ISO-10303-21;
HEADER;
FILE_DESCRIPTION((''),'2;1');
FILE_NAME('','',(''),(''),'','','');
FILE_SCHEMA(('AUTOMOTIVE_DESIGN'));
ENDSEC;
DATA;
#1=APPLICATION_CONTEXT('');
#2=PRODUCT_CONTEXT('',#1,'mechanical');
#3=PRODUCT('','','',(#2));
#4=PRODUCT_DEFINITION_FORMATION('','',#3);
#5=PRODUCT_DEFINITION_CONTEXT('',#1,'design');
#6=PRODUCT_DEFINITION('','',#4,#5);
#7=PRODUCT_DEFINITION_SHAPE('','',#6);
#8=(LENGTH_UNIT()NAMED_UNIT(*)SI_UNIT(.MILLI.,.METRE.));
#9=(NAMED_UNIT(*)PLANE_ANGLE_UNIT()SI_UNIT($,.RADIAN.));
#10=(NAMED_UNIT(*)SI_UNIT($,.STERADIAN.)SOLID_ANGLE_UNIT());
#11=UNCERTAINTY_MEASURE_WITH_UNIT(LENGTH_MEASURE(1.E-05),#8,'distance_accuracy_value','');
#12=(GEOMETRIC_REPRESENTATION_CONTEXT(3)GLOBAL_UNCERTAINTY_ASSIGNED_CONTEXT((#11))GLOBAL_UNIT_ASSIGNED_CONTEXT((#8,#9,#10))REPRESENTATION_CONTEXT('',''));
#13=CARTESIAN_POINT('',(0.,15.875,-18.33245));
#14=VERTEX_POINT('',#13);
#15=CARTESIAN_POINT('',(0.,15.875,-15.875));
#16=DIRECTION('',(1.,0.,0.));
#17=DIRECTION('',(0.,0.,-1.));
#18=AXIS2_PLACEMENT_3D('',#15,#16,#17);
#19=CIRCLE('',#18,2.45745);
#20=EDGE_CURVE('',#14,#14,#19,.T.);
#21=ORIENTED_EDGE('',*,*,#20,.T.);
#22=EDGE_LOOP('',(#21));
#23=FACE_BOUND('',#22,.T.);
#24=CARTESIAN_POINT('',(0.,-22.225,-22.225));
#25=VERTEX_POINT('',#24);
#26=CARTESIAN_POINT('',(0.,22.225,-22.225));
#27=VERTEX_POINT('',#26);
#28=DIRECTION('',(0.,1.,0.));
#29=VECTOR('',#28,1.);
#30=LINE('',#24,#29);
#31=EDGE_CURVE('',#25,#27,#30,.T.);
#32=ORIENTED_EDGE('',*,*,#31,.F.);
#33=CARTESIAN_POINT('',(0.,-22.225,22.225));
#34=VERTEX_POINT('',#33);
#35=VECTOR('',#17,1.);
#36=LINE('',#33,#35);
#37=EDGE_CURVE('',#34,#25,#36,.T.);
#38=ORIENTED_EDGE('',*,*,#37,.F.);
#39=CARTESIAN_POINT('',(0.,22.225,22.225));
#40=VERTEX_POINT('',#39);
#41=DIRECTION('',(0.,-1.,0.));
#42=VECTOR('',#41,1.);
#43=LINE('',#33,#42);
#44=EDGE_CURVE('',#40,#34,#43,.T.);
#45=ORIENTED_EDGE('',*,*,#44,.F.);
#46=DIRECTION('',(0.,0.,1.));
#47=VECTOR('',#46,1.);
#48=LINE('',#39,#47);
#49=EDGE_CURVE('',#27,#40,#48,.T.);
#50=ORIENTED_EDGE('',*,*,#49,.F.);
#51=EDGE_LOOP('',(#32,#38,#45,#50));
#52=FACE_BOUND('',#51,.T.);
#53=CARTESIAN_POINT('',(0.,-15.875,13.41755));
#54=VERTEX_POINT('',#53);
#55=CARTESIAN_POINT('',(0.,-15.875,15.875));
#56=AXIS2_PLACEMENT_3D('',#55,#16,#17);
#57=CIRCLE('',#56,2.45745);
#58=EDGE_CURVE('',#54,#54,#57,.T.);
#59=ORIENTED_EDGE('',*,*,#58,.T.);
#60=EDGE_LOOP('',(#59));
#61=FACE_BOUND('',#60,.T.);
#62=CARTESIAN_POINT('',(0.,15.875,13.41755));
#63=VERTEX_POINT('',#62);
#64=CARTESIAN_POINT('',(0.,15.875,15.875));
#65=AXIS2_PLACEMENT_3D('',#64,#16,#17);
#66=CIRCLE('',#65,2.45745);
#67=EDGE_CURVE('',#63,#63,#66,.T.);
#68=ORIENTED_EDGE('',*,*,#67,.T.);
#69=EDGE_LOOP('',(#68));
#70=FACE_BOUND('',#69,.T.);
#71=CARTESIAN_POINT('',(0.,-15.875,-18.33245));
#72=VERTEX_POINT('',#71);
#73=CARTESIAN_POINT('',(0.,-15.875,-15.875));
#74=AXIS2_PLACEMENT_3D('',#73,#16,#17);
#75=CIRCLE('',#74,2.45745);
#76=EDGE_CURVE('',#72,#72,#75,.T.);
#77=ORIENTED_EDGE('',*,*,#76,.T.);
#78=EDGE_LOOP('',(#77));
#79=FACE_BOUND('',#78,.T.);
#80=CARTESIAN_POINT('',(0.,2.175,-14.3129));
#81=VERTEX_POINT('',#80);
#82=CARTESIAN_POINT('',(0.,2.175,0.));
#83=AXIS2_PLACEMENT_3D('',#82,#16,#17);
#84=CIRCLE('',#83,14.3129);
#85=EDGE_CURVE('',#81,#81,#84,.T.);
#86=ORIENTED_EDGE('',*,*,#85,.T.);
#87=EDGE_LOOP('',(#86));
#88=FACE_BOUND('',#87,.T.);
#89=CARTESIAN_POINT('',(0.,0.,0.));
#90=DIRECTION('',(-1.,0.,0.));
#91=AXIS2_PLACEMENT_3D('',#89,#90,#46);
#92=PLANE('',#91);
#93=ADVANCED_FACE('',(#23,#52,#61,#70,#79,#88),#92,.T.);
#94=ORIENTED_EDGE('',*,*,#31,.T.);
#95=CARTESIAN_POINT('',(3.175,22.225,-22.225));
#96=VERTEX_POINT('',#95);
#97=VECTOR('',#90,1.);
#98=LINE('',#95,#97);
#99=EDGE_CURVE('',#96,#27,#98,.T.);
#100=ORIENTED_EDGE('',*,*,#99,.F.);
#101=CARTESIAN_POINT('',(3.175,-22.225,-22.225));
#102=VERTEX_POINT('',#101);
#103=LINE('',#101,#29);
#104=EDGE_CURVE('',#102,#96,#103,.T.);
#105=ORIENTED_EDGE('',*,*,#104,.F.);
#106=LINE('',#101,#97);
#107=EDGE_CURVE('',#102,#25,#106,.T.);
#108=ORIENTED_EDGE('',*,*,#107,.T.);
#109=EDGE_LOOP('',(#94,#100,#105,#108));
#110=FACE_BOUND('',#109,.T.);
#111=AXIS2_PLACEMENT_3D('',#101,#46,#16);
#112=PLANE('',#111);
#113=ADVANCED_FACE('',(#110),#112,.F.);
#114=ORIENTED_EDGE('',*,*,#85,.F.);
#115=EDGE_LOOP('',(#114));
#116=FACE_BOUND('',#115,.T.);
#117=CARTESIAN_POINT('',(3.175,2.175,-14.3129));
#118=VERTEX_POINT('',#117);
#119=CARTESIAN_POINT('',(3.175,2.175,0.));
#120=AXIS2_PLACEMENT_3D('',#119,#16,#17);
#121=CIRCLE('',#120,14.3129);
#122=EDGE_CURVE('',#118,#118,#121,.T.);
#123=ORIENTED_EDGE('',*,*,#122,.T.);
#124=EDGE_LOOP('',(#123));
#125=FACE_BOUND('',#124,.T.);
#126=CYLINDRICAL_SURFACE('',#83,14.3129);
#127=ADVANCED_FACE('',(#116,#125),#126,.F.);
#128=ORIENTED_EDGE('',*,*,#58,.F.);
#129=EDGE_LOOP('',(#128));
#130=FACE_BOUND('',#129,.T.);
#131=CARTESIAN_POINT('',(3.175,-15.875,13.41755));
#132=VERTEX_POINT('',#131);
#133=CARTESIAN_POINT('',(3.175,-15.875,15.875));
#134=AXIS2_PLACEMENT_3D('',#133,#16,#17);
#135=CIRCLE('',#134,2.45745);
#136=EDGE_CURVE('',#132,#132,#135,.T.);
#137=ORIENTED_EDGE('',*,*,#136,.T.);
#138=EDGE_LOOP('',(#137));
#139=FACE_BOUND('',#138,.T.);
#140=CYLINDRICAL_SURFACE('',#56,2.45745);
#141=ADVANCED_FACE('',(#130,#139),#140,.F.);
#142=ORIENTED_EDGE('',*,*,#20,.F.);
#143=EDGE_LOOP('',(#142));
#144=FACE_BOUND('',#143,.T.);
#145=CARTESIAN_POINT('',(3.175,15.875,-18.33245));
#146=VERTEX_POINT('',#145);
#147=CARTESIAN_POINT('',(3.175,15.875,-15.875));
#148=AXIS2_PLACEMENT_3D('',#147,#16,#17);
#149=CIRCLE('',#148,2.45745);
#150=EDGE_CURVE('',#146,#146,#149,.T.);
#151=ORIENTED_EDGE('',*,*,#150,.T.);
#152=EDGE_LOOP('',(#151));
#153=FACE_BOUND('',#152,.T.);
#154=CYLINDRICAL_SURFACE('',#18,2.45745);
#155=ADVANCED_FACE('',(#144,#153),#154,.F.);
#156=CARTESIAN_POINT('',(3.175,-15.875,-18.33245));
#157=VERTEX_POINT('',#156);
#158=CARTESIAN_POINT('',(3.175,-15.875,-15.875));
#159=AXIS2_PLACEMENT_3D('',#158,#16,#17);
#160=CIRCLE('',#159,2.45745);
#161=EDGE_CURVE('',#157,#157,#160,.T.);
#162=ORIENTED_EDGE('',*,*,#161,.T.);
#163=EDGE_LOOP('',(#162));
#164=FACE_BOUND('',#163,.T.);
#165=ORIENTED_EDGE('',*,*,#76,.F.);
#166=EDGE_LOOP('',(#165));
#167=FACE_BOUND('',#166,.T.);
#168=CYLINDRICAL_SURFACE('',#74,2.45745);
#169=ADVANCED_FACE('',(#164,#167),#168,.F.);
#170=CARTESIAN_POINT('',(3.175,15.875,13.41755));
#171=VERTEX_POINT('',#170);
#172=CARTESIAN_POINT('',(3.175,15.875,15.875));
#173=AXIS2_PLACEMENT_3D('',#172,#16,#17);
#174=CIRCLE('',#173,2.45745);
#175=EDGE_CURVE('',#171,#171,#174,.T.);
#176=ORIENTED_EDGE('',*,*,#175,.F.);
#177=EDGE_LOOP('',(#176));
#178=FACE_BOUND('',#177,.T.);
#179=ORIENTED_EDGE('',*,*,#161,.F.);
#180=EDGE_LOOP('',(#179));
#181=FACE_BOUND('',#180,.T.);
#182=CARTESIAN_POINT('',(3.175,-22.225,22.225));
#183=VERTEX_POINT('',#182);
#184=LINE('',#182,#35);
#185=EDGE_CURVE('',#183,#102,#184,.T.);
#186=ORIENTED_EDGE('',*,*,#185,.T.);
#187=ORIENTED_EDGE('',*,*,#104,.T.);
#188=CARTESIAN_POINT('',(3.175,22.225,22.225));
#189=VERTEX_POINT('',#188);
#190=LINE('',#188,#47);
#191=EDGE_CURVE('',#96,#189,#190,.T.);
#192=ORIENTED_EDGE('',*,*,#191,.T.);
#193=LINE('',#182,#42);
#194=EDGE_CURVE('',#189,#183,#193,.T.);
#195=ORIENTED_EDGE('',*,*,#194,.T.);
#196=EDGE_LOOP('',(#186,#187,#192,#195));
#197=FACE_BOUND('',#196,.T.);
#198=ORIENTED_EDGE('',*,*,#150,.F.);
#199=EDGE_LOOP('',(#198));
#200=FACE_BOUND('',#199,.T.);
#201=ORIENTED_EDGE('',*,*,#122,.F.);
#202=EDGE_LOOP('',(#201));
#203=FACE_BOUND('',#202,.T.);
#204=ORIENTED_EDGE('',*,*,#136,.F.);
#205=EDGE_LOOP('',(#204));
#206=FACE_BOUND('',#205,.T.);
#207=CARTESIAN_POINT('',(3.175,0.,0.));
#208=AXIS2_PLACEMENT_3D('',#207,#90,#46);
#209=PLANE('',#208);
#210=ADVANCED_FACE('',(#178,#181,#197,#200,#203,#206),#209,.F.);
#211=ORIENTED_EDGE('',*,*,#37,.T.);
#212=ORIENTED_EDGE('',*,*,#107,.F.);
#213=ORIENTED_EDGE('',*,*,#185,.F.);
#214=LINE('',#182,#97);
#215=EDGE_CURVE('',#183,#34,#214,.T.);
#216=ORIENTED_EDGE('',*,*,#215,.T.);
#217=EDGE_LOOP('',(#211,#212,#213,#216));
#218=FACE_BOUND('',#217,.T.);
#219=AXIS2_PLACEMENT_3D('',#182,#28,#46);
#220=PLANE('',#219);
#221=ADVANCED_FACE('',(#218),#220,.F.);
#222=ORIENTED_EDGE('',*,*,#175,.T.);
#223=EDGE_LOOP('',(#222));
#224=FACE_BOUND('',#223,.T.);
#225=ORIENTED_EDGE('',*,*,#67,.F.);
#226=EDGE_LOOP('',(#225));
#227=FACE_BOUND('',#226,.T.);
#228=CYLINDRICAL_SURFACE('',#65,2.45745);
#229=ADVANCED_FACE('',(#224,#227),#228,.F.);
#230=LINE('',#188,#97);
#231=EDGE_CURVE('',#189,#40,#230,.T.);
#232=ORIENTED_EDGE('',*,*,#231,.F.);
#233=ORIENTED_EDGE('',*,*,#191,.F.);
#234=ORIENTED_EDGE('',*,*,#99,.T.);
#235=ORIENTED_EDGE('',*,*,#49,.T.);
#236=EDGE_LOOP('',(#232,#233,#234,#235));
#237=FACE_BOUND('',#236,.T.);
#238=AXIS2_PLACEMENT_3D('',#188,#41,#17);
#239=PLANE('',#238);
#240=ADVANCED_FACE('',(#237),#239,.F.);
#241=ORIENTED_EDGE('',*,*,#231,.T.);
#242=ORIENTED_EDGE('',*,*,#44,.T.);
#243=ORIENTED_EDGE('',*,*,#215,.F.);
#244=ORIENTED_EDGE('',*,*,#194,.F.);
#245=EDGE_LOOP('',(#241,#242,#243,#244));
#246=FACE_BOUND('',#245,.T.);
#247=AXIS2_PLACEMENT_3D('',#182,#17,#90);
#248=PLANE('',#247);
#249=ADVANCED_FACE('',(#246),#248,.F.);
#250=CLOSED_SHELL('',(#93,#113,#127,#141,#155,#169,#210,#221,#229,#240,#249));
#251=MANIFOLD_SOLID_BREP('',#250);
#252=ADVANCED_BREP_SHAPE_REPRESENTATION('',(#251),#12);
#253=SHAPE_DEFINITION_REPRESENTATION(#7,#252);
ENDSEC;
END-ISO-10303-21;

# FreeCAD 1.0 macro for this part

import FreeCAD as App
import Part
import Sketcher
Q = App.Units.Quantity


def add_polygon(sketch, points):
    """Adds a closed chain of lines whose ends are joined by coincident constraints."""
    first, n = sketch.GeometryCount, len(points)
    for a, b in zip(points, points[1:] + points[:1]):
        sketch.addGeometry(Part.LineSegment(App.Vector(*a, 0), App.Vector(*b, 0)), False)
    for i in range(n):
        sketch.addConstraint(Sketcher.Constraint("Coincident", first + i, 2, first + (i + 1) % n, 1))

doc = App.newDocument("Part")
body = doc.addObject("PartDesign::Body", "Body")

sketch1 = doc.addObject("Sketcher::SketchObject", "Sketch")
body.addObject(sketch1)
sketch1.AttachmentSupport = (doc.YZ_Plane, [""])
sketch1.MapMode = "FlatFace"
add_polygon(sketch1, [(22.225, 22.225), (-22.225, 22.225), (-22.225, -22.225), (22.225, -22.225)])
sketch1.addConstraint([
    Sketcher.Constraint("Horizontal", 0),
    Sketcher.Constraint("Vertical", 1),
    Sketcher.Constraint("Horizontal", 2),
    Sketcher.Constraint("Vertical", 3),
    Sketcher.Constraint("Symmetric", 0, 2, 2, 2, -1, 1),
    Sketcher.Constraint("Equal", 2, 1),
    Sketcher.Constraint("DistanceX", 0, 2, 0, 1, Q("1.75 in")),
])
pad1 = doc.addObject("PartDesign::Pad", "Pad")
body.addObject(pad1)
pad1.Profile = sketch1
pad1.Length = Q("0.125 in")

sketch2 = doc.addObject("Sketcher::SketchObject", "Sketch001")
body.addObject(sketch2)
sketch2.AttachmentSupport = (doc.YZ_Plane, [""])
sketch2.MapMode = "FlatFace"
sketch2.AttachmentOffset = App.Placement(App.Vector(0, 0, 0.125 * 25.4), App.Rotation())
sketch2.addGeometry([
    Part.Circle(App.Vector(2.175, 0, 0), App.Vector(0, 0, 1), 14.3129),
    Part.Circle(App.Vector(15.875, 15.875, 0), App.Vector(0, 0, 1), 2.45745),
    Part.Circle(App.Vector(15.875, -15.875, 0), App.Vector(0, 0, 1), 2.45745),
    Part.Circle(App.Vector(-15.875, -15.875, 0), App.Vector(0, 0, 1), 2.45745),
    Part.Circle(App.Vector(-15.875, 15.875, 0), App.Vector(0, 0, 1), 2.45745),
], False)
sketch2.addConstraint([
    Sketcher.Constraint("Equal", 1, 2),
    Sketcher.Constraint("Equal", 2, 3),
    Sketcher.Constraint("Equal", 3, 4),
    Sketcher.Constraint("Symmetric", 1, 3, 3, 3, -1, 1),
    Sketcher.Constraint("Symmetric", 2, 3, 4, 3, -1, 1),
    Sketcher.Constraint("Symmetric", 2, 3, 3, 3, -2),
    Sketcher.Constraint("PointOnObject", 0, 3, -1),
    Sketcher.Constraint("Diameter", 0, Q("1.127 in")),
    Sketcher.Constraint("Diameter", 1, Q("0.1935 in")),
    Sketcher.Constraint("DistanceY", 2, 3, 1, 3, Q("1.25 in")),
    Sketcher.Constraint("DistanceX", 3, 3, 2, 3, Q("1.25 in")),
    Sketcher.Constraint("DistanceX", -1, 1, 0, 3, Q("2.175 mm")),
])
pocket1 = doc.addObject("PartDesign::Pocket", "Pocket")
body.addObject(pocket1)
pocket1.Profile = sketch2
pocket1.Type = "ThroughAll"

doc.recompute()
